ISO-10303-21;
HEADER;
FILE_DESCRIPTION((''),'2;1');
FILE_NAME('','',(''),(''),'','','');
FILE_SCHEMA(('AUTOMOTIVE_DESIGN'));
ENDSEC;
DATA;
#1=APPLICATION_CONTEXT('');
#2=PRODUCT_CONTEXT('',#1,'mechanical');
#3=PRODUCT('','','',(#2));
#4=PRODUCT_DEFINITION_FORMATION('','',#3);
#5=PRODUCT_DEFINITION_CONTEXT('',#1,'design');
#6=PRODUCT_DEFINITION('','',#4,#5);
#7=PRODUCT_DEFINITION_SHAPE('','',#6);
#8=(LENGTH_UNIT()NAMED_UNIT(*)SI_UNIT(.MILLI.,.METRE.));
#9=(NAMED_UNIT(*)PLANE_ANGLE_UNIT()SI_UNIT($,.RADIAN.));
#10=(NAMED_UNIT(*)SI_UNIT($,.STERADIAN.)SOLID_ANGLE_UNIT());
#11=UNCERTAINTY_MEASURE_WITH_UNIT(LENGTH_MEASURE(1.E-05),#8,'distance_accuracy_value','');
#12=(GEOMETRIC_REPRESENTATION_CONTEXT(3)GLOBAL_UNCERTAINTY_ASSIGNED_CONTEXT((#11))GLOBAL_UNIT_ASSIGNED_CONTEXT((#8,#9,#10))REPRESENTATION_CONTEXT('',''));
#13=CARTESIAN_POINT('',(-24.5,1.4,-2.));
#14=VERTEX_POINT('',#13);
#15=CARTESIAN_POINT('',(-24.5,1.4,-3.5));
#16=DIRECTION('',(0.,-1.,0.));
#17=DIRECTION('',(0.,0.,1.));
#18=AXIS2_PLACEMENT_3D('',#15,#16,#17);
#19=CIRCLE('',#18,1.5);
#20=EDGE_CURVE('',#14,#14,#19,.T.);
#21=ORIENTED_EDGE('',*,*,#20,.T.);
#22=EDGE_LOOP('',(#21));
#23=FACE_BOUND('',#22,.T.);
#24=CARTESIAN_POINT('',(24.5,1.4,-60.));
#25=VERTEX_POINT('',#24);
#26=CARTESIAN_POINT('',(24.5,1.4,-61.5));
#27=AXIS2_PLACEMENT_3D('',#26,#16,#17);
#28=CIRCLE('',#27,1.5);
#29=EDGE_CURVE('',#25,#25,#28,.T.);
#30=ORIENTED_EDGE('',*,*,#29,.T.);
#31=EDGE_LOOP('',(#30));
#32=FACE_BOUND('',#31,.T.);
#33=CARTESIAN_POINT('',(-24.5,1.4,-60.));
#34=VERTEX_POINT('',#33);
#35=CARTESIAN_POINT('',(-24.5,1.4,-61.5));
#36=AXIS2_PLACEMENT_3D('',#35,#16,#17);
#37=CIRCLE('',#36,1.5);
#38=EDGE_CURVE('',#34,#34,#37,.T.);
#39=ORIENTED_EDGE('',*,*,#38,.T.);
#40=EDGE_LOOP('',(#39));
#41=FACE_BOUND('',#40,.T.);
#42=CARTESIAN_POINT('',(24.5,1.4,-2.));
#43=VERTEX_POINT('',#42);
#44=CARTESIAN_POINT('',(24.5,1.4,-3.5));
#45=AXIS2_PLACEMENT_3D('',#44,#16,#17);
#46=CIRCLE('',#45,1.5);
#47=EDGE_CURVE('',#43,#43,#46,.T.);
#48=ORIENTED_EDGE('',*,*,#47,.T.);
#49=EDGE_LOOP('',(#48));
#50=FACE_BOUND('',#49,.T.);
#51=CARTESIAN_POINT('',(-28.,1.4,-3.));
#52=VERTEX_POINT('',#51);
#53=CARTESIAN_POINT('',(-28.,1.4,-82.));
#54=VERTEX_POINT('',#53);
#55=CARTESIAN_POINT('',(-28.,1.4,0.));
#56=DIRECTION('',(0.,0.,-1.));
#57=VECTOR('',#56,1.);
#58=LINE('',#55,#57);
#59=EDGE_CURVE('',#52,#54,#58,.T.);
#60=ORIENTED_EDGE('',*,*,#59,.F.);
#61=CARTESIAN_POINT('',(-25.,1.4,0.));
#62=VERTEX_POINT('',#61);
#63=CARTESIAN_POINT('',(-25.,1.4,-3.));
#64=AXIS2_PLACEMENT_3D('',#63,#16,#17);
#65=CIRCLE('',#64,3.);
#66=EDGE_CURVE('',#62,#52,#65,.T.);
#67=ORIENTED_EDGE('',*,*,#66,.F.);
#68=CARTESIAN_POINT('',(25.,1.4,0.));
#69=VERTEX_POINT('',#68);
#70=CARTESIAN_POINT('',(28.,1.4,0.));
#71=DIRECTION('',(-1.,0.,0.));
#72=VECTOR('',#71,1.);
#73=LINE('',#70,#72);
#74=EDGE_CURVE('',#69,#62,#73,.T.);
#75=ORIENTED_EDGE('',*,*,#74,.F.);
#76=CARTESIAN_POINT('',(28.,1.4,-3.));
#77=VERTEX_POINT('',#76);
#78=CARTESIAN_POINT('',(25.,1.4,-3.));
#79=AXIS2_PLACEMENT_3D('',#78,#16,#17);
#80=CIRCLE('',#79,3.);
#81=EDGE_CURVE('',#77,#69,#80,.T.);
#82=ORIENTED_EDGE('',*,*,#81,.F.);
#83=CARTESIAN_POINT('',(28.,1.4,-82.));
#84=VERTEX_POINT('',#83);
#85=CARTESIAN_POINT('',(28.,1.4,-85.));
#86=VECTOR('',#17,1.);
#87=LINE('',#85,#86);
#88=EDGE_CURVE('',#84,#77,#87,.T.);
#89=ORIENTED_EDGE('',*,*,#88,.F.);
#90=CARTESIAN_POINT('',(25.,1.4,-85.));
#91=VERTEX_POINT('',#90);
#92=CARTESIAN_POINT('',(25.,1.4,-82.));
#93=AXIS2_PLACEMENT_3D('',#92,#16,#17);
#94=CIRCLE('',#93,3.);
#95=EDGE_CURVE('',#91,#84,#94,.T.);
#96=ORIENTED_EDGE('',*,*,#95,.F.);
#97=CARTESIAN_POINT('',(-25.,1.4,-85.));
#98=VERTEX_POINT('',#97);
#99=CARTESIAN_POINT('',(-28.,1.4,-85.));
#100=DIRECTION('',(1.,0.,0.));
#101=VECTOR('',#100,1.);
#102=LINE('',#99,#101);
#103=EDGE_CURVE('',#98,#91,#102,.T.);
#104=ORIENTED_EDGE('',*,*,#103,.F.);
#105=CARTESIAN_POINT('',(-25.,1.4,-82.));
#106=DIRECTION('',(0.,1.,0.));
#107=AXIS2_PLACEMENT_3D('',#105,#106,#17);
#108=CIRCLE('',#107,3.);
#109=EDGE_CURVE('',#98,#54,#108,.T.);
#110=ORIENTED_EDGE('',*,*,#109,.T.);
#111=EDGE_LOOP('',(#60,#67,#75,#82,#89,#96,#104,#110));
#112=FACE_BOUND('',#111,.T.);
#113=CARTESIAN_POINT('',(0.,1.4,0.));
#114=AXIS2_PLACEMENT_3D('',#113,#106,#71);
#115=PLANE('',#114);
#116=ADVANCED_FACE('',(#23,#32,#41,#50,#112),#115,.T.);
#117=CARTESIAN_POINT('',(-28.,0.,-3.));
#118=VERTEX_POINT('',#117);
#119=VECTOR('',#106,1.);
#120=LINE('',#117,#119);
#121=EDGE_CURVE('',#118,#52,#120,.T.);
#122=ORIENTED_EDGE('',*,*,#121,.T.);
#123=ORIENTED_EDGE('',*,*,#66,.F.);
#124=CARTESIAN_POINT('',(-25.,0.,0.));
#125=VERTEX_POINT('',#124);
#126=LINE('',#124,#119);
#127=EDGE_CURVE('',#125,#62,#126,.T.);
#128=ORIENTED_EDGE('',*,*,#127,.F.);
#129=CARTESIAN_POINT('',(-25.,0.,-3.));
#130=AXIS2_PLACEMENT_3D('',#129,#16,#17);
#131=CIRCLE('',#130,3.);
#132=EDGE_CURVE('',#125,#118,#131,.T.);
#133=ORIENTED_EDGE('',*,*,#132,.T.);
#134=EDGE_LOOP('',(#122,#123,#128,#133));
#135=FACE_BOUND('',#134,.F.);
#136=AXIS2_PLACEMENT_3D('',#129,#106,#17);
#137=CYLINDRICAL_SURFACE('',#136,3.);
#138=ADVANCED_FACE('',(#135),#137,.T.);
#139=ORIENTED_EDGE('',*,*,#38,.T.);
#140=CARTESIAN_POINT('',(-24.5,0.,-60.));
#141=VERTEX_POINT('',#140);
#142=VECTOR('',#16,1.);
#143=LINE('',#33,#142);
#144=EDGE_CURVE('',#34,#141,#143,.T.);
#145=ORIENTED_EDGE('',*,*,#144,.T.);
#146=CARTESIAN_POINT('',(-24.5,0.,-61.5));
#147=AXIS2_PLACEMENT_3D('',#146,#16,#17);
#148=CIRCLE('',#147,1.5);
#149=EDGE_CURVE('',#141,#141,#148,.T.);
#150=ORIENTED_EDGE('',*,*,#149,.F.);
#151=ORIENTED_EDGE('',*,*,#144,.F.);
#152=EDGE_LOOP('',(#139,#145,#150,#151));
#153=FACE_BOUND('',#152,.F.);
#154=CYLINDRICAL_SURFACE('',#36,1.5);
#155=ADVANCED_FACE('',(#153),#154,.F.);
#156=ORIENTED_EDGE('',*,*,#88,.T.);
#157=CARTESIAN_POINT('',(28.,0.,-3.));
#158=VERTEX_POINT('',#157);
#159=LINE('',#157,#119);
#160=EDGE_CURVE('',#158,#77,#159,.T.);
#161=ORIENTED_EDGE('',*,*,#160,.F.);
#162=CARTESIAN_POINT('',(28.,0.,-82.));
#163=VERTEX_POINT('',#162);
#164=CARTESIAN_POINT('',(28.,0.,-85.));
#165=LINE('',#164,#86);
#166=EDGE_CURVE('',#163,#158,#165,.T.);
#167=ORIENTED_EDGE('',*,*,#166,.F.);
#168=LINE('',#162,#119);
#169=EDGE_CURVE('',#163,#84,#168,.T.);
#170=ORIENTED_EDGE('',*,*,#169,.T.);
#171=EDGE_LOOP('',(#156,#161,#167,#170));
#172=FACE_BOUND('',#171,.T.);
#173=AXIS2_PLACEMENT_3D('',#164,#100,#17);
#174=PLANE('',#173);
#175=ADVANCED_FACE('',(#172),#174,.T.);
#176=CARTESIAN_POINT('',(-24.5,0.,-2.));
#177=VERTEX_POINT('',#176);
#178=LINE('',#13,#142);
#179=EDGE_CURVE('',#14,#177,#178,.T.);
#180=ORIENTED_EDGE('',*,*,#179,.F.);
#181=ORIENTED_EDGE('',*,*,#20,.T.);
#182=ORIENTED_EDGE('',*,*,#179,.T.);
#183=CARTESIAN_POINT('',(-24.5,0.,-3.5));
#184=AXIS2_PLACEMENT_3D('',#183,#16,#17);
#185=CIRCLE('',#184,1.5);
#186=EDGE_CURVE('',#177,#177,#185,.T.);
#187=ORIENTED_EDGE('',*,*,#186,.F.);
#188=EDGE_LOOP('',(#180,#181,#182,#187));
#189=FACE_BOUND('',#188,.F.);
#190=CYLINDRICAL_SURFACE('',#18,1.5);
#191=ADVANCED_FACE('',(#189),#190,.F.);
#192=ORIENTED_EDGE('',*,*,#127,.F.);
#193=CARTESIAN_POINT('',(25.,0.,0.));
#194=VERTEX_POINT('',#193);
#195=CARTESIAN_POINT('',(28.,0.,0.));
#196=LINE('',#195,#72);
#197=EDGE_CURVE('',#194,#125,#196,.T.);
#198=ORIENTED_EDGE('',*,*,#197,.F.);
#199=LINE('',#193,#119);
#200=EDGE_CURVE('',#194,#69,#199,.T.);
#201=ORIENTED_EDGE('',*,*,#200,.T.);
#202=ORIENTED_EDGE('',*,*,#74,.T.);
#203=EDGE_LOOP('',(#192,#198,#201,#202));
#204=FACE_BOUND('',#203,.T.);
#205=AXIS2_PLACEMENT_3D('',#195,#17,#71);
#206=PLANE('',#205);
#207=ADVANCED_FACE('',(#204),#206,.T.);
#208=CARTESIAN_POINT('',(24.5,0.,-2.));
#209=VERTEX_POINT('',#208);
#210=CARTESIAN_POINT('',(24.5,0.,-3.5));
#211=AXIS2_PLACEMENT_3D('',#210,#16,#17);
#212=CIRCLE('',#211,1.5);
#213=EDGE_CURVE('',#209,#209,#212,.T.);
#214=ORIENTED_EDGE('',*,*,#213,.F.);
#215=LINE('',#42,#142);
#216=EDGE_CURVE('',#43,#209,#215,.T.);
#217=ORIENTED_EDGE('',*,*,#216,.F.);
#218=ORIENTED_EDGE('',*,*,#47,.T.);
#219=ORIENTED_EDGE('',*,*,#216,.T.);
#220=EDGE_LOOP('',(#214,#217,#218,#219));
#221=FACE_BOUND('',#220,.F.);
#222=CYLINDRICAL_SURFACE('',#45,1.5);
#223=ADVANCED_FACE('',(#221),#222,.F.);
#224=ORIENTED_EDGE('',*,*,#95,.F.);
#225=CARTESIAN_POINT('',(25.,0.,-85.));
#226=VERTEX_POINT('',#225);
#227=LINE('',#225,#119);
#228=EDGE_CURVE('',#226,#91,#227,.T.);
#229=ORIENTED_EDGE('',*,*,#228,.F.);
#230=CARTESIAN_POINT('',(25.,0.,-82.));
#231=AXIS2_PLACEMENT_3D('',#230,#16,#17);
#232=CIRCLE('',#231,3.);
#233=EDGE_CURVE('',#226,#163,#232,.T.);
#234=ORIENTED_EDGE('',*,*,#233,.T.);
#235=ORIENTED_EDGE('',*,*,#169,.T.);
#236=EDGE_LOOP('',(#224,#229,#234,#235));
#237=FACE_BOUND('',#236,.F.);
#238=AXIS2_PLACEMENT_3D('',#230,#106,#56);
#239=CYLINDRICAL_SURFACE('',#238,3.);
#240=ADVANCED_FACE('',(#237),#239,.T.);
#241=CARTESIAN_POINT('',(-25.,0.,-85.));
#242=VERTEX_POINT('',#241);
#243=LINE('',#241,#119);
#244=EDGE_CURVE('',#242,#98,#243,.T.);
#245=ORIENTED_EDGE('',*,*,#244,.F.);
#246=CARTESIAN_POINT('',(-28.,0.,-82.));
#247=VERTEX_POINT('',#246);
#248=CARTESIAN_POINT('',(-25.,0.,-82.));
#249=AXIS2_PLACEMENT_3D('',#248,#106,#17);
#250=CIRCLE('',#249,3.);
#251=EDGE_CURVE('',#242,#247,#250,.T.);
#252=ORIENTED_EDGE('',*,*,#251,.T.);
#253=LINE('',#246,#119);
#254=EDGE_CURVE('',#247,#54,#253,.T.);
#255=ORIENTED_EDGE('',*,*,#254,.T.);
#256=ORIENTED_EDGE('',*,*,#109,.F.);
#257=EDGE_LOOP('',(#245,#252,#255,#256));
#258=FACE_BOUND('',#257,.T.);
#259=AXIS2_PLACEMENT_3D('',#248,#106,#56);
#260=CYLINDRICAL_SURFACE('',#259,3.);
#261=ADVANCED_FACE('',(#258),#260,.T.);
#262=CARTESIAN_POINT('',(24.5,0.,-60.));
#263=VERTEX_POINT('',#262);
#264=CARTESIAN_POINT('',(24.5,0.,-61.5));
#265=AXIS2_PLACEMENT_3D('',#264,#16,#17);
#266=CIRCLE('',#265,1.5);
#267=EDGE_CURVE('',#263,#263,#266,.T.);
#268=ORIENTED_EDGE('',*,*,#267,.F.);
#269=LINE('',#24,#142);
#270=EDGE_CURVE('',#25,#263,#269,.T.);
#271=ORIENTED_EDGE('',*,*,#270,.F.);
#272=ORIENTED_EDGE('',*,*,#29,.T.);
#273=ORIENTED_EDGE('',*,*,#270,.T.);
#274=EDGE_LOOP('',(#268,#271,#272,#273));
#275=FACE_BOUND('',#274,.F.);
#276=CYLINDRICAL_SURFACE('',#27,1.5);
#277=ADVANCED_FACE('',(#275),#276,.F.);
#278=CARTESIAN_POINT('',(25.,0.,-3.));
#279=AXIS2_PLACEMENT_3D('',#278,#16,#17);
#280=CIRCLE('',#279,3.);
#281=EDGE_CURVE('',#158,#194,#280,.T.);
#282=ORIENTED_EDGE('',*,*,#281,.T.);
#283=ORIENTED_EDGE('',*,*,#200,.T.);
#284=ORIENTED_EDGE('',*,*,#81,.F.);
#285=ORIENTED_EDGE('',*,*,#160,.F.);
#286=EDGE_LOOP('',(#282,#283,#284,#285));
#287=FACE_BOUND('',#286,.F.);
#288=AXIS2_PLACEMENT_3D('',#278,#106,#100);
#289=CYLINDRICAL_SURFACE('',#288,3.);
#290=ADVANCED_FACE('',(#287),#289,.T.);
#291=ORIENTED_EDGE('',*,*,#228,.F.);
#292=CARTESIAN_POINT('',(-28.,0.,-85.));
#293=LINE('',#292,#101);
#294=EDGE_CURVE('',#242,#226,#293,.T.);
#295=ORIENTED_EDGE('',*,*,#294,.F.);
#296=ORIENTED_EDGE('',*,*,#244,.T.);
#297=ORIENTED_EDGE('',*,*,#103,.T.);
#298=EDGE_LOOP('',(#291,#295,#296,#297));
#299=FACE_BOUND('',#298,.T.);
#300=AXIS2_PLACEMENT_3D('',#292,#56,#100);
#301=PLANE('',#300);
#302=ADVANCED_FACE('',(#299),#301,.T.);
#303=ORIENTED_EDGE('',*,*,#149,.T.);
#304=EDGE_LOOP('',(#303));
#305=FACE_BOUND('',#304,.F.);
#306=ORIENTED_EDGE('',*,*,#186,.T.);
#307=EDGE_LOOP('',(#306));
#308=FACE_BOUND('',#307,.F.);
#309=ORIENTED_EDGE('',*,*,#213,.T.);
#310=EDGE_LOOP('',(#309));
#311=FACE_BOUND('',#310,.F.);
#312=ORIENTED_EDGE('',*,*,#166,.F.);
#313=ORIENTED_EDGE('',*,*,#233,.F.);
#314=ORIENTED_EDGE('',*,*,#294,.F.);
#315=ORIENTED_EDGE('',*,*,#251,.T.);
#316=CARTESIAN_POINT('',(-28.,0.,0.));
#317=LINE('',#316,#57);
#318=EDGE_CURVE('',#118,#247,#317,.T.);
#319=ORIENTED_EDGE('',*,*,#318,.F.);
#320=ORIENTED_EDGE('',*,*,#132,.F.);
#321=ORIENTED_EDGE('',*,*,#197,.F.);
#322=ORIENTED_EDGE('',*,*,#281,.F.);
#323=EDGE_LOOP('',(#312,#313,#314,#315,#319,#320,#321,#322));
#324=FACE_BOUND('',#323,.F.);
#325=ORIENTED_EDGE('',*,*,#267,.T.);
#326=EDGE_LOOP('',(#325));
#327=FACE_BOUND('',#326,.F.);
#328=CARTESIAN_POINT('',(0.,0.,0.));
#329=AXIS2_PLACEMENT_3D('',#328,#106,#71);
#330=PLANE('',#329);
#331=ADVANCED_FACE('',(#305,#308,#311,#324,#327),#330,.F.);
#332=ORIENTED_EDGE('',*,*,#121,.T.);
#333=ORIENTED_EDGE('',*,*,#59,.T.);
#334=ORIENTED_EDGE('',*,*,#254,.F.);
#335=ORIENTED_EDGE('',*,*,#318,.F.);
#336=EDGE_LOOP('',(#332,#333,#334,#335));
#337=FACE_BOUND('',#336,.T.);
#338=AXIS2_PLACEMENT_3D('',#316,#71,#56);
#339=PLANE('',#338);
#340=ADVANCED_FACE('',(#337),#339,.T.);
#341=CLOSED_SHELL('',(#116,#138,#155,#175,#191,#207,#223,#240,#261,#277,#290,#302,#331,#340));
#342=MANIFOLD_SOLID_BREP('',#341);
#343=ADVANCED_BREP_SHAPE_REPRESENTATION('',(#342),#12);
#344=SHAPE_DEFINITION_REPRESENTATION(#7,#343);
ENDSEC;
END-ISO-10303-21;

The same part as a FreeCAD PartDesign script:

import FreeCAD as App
import Part
import Sketcher


def edges_at(feature, points):
    """Names of the edges that pass closest to the given points."""
    edges = feature.Shape.Edges
    near = lambda p: min(range(len(edges)), key=lambda i: edges[i].distToShape(Part.Vertex(*p))[0])
    return sorted({f"Edge{near(p) + 1}" for p in points})


def add_polygon(sketch, points):
    """Adds a closed chain of lines whose ends are joined by coincident constraints."""
    first, n = sketch.GeometryCount, len(points)
    for a, b in zip(points, points[1:] + points[:1]):
        sketch.addGeometry(Part.LineSegment(App.Vector(*a, 0), App.Vector(*b, 0)), False)
    for i in range(n):
        sketch.addConstraint(Sketcher.Constraint("Coincident", first + i, 2, first + (i + 1) % n, 1))

doc = App.newDocument("Part")
body = doc.addObject("PartDesign::Body", "Body")

# Sketch on XZ plane
sketch1 = body.newObject("Sketcher::SketchObject", "Sketch")
sketch1.AttachmentSupport = (doc.getObject("XZ_Plane"), [""])
sketch1.MapMode = "FlatFace"
add_polygon(sketch1, [(28, -85), (-28, -85), (-28, 0), (28, 0)])  # lines 0-3
sketch1.addConstraint([
    Sketcher.Constraint("Horizontal", 0),
    Sketcher.Constraint("Vertical", 1),
    Sketcher.Constraint("Horizontal", 2),
    Sketcher.Constraint("Vertical", 3),
    Sketcher.Constraint("Symmetric", 1, 2, 2, 2, -1, 1),
    Sketcher.Constraint("DistanceX", 0, 2, 0, 1, 56.0),
    Sketcher.Constraint("DistanceY", 1, 1, 1, 2, 85.0),
])
pad1 = body.newObject("PartDesign::Pad", "Pad")
pad1.Profile = sketch1
pad1.Length = 1.4
pad1.Reversed = True
doc.recompute()

fillet = body.newObject("PartDesign::Fillet", "Fillet")
fillet.Base = (pad1, edges_at(pad1, [
    (-28, 0.7, 0),
    (28, 0.7, 0),
    (28, 0.7, -85),
    (-28, 0.7, -85),
]))
fillet.Radius = 3

# Sketch on XZ plane
sketch2 = body.newObject("Sketcher::SketchObject", "Sketch001")
sketch2.AttachmentSupport = (doc.getObject("XZ_Plane"), [""])
sketch2.MapMode = "FlatFace"
sketch2.AttachmentOffset = App.Placement(App.Vector(0, 0, -1.4), App.Rotation())
sketch2.addGeometry([
    Part.Circle(App.Vector(-24.5, -61.5, 0), App.Vector(0, 0, 1), 1.5),
    Part.Circle(App.Vector(24.5, -61.5, 0), App.Vector(0, 0, 1), 1.5),
    Part.Circle(App.Vector(24.5, -3.5, 0), App.Vector(0, 0, 1), 1.5),
    Part.Circle(App.Vector(-24.5, -3.5, 0), App.Vector(0, 0, 1), 1.5),
], False)
sketch2.addConstraint([
    Sketcher.Constraint("Equal", 0, 1),
    Sketcher.Constraint("Equal", 1, 2),
    Sketcher.Constraint("Equal", 2, 3),
    Sketcher.Constraint("Symmetric", 0, 3, 1, 3, -2),
    Sketcher.Constraint("Symmetric", 2, 3, 3, 3, -2),
    Sketcher.Constraint("Vertical", 1, 3, 2, 3),
    Sketcher.Constraint("Diameter", 0, 3.0),
    Sketcher.Constraint("DistanceX", 0, 3, 1, 3, 49.0),
    Sketcher.Constraint("DistanceY", 1, 3, 2, 3, 58.0),
    Sketcher.Constraint("DistanceY", 0, 3, -1, 1, 61.5),
])
doc.recompute()
hole = body.newObject("PartDesign::Hole", "Hole")
hole.Profile = sketch2
hole.ThreadType = "None"
hole.Diameter = 3
hole.DepthType = "Dimension"
hole.Depth = 6
hole.DrillPoint = "Flat"
hole.Reversed = True

doc.recompute()
